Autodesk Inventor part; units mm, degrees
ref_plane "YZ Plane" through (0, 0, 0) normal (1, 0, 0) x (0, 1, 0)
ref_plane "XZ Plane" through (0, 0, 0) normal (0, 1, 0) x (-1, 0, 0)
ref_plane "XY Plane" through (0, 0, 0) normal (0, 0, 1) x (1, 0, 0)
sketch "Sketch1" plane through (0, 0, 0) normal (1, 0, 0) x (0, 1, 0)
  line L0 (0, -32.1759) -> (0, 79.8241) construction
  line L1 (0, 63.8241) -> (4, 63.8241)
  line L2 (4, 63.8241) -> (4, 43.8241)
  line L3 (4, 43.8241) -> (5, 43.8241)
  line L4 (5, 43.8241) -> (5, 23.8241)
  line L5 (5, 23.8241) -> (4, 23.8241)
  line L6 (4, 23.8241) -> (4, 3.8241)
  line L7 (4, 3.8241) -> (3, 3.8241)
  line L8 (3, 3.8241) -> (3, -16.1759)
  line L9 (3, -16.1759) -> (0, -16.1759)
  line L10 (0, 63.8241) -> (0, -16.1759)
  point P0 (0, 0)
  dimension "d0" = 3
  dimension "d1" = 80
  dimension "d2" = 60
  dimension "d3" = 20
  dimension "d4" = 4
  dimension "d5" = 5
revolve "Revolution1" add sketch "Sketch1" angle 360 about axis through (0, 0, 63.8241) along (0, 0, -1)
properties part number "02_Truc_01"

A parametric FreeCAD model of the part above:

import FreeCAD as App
import Part
import Sketcher

V = App.Vector
Q = App.Units.Quantity


def add_polygon(sketch, points):
    """Adds a closed chain of lines whose ends are joined by coincident constraints."""
    first, n = sketch.GeometryCount, len(points)
    for a, b in zip(points, points[1:] + points[:1]):
        sketch.addGeometry(Part.LineSegment(App.Vector(*a, 0), App.Vector(*b, 0)), False)
    for i in range(n):
        sketch.addConstraint(Sketcher.Constraint("Coincident", first + i, 2, first + (i + 1) % n, 1))

doc = App.newDocument("Part")
params = doc.addObject("Spreadsheet::Sheet", "Params")
for row, (alias, value) in enumerate([
    ("sketch1_width", "4 mm"),
    ("sketch1_width2", "3 mm"),
    ("sketch1_height", "80 mm"),
    ("revolution_angle", "360 deg"),
], start=1):
    params.set(f"A{row}", alias)
    params.set(f"B{row}", "=" + value)
    params.setAlias(f"B{row}", alias)

body = doc.addObject("PartDesign::Body", "Body")

sketch1 = body.newObject("Sketcher::SketchObject", "Sketch")
sketch1.AttachmentSupport = (doc.getObject("YZ_Plane"), [""])
sketch1.MapMode = "FlatFace"
add_polygon(sketch1, [(4, 63.8), (0, 63.8), (0, -16.2), (3, -16.2), (3, 3.8), (4, 3.8), (4, 23.8), (5, 23.8), (5, 43.8), (4, 43.8)])
sketch1.addConstraint(Sketcher.Constraint("Horizontal", 0))
sketch1.addConstraint(Sketcher.Constraint("Vertical", 1))
sketch1.addConstraint(Sketcher.Constraint("Horizontal", 2))
sketch1.addConstraint(Sketcher.Constraint("Vertical", 3))
sketch1.addConstraint(Sketcher.Constraint("Horizontal", 4))
sketch1.addConstraint(Sketcher.Constraint("Vertical", 5))
sketch1.addConstraint(Sketcher.Constraint("Horizontal", 6))
sketch1.addConstraint(Sketcher.Constraint("Vertical", 7))
sketch1.addConstraint(Sketcher.Constraint("Horizontal", 8))
sketch1.addConstraint(Sketcher.Constraint("Vertical", 9))
sketch1.addConstraint(Sketcher.Constraint("PointOnObject", 0, 2, -2))
sketch1.addConstraint(Sketcher.Constraint("Vertical", 5, 2, 8, 2))
sketch1.addConstraint(Sketcher.Constraint("Equal", 4, 6))
sketch1.addConstraint(Sketcher.Constraint("Equal", 3, 5))
sketch1.addConstraint(Sketcher.Constraint("Equal", 5, 7))
sketch1.addConstraint(Sketcher.Constraint("Equal", 7, 9))
sketch1.addConstraint(Sketcher.Constraint("DistanceX", 0, 2, 0, 1, Q("4 mm")))
sketch1.addConstraint(Sketcher.Constraint("DistanceX", 2, 1, 2, 2, Q("3 mm")))
sketch1.addConstraint(Sketcher.Constraint("DistanceY", 1, 2, 1, 1, Q("80 mm")))
sketch1.addConstraint(Sketcher.Constraint("DistanceY", -1, 1, 0, 2, Q("63.824 mm")))
sketch1.setExpression("Constraints[26]", "Params.sketch1_width")
sketch1.setExpression("Constraints[27]", "Params.sketch1_width2")
sketch1.setExpression("Constraints[28]", "Params.sketch1_height")
revolution = body.newObject("PartDesign::Revolution", "Revolution")
revolution.Profile = sketch1
revolution.ReferenceAxis = (sketch1, ["V_Axis"])
revolution.setExpression("Angle", "Params.revolution_angle")

doc.recompute()
